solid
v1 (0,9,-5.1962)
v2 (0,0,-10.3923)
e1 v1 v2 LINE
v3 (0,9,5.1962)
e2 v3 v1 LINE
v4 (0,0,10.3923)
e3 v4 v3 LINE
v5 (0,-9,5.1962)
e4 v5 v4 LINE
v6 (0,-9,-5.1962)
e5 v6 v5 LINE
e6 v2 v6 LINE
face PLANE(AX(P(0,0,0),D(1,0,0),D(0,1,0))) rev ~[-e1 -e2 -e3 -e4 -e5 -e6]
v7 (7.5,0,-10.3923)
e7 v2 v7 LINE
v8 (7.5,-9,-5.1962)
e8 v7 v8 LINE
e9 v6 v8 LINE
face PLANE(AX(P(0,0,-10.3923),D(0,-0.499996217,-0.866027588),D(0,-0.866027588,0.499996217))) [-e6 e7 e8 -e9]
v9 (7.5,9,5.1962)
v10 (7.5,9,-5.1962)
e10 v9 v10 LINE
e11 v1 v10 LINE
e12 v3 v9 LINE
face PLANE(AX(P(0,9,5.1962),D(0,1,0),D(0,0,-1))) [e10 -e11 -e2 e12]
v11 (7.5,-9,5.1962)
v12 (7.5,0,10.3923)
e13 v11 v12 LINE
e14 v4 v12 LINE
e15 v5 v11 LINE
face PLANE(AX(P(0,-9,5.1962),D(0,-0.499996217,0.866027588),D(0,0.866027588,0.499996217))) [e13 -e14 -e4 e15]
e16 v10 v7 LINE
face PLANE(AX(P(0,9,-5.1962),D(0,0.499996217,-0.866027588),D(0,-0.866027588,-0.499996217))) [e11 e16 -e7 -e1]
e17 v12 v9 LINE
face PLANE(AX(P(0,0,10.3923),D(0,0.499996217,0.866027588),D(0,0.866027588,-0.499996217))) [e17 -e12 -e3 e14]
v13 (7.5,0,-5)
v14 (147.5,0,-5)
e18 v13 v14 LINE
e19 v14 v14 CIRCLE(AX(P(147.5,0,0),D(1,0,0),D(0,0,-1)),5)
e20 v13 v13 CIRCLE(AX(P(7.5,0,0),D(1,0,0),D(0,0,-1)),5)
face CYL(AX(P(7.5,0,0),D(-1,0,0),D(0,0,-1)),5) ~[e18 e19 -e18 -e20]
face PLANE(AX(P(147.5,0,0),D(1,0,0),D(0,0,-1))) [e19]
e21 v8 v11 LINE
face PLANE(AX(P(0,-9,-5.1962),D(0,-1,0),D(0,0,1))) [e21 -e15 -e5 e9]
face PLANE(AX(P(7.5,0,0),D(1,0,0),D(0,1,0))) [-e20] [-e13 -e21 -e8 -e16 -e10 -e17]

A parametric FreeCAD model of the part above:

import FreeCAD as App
import Part
import Sketcher
Q = App.Units.Quantity


def add_polygon(sketch, points):
    """Adds a closed chain of lines whose ends are joined by coincident constraints."""
    first, n = sketch.GeometryCount, len(points)
    for a, b in zip(points, points[1:] + points[:1]):
        sketch.addGeometry(Part.LineSegment(App.Vector(*a, 0), App.Vector(*b, 0)), False)
    for i in range(n):
        sketch.addConstraint(Sketcher.Constraint("Coincident", first + i, 2, first + (i + 1) % n, 1))

doc = App.newDocument("Part")
body = doc.addObject("PartDesign::Body", "Body")

sketch1 = doc.addObject("Sketcher::SketchObject", "Sketch")
body.addObject(sketch1)
sketch1.AttachmentSupport = (doc.YZ_Plane, [""])
sketch1.MapMode = "FlatFace"
add_polygon(sketch1, [(-9, -5.1962), (0, -10.3923), (9, -5.1962), (9, 5.1962), (0, 10.3923), (-9, 5.1962)])
sketch1.addConstraint(Sketcher.Constraint("Vertical", 2))
sketch1.addConstraint(Sketcher.Constraint("Vertical", 5))
sketch1.addConstraint(Sketcher.Constraint("Symmetric", 0, 2, 3, 2, -1, 1))
sketch1.addConstraint(Sketcher.Constraint("Symmetric", 1, 2, 4, 2, -1, 1))
sketch1.addConstraint(Sketcher.Constraint("PointOnObject", 0, 2, -2))
sketch1.addConstraint(Sketcher.Constraint("Parallel", 0, 3))
sketch1.addConstraint(Sketcher.Constraint("Horizontal", 2, 2, 4, 2))
sketch1.addConstraint(Sketcher.Constraint("DistanceX", 4, 2, 2, 2, 18.0))
sketch1.addConstraint(Sketcher.Constraint("Angle", 0, Q("-29.9997 deg")))
sketch1.addConstraint(Sketcher.Constraint("DistanceY", 2, 1, 2, 2, 10.3924))
pad1 = doc.addObject("PartDesign::Pad", "Pad")
body.addObject(pad1)
pad1.Profile = sketch1
pad1.Length = 7.5

sketch2 = doc.addObject("Sketcher::SketchObject", "Sketch001")
body.addObject(sketch2)
sketch2.AttachmentSupport = (doc.YZ_Plane, [""])
sketch2.MapMode = "FlatFace"
sketch2.AttachmentOffset = App.Placement(App.Vector(0, 0, 7.5), App.Rotation())
sketch2.addGeometry(Part.Circle(App.Vector(0, 0, 0), App.Vector(0, 0, 1), 5), False)
sketch2.addConstraint(Sketcher.Constraint("Coincident", 0, 3, -1, 1))
sketch2.addConstraint(Sketcher.Constraint("Diameter", 0, 10.0))
pad2 = doc.addObject("PartDesign::Pad", "Pad001")
body.addObject(pad2)
pad2.Profile = sketch2
pad2.Length = 140

doc.recompute()
